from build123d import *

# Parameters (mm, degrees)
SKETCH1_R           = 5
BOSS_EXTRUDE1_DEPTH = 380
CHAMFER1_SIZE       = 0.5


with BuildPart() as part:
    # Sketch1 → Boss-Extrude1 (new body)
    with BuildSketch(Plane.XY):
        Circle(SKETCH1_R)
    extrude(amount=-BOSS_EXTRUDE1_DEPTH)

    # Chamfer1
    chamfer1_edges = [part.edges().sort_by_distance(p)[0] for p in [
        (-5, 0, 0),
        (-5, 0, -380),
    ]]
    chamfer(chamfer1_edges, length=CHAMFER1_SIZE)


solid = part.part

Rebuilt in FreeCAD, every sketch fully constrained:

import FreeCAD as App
import Part
import Sketcher


def edges_at(feature, points):
    """Names of the edges that pass closest to the given points."""
    edges = feature.Shape.Edges
    near = lambda p: min(range(len(edges)), key=lambda i: edges[i].distToShape(Part.Vertex(*p))[0])
    return sorted({f"Edge{near(p) + 1}" for p in points})

doc = App.newDocument("Part")
body = doc.addObject("PartDesign::Body", "Body")

sketch1 = doc.addObject("Sketcher::SketchObject", "Sketch")
body.addObject(sketch1)
sketch1.AttachmentSupport = (doc.XY_Plane, [""])
sketch1.MapMode = "FlatFace"
sketch1.addGeometry(Part.Circle(App.Vector(0, 0, 0), App.Vector(0, 0, 1), 5), False)
sketch1.addConstraint([
    Sketcher.Constraint("Coincident", 0, 3, -1, 1),
    Sketcher.Constraint("Diameter", 0, 10.0),
])
pad1 = doc.addObject("PartDesign::Pad", "Pad")
body.addObject(pad1)
pad1.Profile = sketch1
pad1.Length = 380
pad1.Reversed = True
doc.recompute()

chamfer = doc.addObject("PartDesign::Chamfer", "Chamfer")
body.addObject(chamfer)
chamfer.Base = (pad1, edges_at(pad1, [(-5, 0, 0), (-5, 0, -380)]))
chamfer.Size = 0.5

doc.recompute()
